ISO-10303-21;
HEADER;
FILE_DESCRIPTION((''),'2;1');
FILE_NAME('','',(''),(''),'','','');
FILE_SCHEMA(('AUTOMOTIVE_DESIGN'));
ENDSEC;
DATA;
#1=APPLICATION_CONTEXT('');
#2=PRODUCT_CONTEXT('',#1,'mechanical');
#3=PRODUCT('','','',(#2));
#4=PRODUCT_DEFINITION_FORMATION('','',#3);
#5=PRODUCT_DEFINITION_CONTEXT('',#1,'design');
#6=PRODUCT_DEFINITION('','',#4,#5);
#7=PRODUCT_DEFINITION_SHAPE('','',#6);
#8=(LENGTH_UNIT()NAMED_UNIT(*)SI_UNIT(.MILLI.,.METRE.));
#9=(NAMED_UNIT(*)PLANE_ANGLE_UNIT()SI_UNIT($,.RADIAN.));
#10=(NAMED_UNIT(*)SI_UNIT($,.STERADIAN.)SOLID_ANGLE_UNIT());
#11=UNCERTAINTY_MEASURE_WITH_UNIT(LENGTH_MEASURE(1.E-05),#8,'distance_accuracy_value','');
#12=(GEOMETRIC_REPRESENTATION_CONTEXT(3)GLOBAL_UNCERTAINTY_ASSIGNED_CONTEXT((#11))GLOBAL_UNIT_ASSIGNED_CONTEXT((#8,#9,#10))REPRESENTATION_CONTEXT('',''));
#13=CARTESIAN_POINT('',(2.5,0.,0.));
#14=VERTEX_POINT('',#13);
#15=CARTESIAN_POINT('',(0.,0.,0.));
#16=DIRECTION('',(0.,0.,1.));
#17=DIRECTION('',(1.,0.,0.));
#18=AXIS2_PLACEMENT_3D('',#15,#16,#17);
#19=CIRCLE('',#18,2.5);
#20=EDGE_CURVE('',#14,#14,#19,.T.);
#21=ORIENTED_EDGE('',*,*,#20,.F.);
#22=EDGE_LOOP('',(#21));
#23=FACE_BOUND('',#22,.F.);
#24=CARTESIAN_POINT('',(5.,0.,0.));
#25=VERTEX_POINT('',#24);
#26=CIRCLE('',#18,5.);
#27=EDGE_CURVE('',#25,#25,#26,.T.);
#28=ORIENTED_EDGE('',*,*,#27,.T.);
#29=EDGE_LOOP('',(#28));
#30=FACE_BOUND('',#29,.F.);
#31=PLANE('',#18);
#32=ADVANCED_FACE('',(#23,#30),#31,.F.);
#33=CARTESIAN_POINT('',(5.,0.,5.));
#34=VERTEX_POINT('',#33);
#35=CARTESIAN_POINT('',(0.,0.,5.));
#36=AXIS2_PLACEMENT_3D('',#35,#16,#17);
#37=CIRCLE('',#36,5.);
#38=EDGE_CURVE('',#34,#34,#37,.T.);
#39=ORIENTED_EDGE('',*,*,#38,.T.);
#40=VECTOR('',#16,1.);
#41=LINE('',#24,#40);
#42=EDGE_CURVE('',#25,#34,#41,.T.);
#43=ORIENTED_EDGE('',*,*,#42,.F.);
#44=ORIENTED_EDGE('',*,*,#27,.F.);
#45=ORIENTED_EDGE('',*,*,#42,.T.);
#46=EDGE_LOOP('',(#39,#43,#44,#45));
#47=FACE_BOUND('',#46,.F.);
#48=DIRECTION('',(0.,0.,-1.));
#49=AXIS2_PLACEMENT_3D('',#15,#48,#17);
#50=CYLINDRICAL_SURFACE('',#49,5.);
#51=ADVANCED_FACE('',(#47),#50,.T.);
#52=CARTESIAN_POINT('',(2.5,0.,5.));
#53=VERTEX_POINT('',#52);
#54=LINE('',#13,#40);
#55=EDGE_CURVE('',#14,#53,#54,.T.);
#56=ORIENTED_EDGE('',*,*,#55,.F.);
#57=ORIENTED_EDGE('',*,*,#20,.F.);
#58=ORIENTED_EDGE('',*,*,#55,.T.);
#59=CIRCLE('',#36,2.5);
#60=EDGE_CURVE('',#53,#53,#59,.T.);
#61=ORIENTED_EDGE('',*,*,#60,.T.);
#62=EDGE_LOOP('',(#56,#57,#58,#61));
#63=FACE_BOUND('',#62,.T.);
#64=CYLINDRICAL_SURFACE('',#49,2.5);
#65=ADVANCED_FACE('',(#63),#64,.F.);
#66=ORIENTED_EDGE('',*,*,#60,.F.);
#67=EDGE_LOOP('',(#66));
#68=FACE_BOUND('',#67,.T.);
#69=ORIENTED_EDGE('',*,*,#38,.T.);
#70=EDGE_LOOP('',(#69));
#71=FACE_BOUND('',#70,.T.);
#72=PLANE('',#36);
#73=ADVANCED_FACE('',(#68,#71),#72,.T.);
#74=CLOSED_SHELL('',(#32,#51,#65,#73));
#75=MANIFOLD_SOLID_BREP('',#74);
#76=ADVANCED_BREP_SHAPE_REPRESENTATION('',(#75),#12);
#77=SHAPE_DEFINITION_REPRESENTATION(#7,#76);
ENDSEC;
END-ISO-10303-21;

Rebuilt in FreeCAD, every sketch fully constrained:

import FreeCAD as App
import Part
import Sketcher

V = App.Vector
Q = App.Units.Quantity

doc = App.newDocument("Part")
params = doc.addObject("Spreadsheet::Sheet", "Params")
for row, (alias, value) in enumerate([
    ("sketch1_diameter", "10 mm"),
    ("sketch1_diameter2", "5 mm"),
    ("pad1_length", "5 mm"),
], start=1):
    params.set(f"A{row}", alias)
    params.set(f"B{row}", "=" + value)
    params.setAlias(f"B{row}", alias)

body = doc.addObject("PartDesign::Body", "Body")

sketch1 = doc.addObject("Sketcher::SketchObject", "Sketch")
body.addObject(sketch1)
sketch1.AttachmentSupport = (doc.XY_Plane, [""])
sketch1.MapMode = "FlatFace"
sketch1.addGeometry([
    Part.Circle(V(0, 0, 0), V(0, 0, 1), 5),
    Part.Circle(V(0, 0, 0), V(0, 0, 1), 2.5),
], False)
sketch1.addConstraint([
    Sketcher.Constraint("Coincident", 0, 3, -1, 1),
    Sketcher.Constraint("Coincident", 1, 3, -1, 1),
    Sketcher.Constraint("Diameter", 0, Q("10 mm")),
    Sketcher.Constraint("Diameter", 1, Q("5 mm")),
])
sketch1.setExpression("Constraints[2]", "Params.sketch1_diameter")
sketch1.setExpression("Constraints[3]", "Params.sketch1_diameter2")
pad1 = doc.addObject("PartDesign::Pad", "Pad")
body.addObject(pad1)
pad1.Profile = sketch1
pad1.setExpression("Length", "Params.pad1_length")

doc.recompute()
